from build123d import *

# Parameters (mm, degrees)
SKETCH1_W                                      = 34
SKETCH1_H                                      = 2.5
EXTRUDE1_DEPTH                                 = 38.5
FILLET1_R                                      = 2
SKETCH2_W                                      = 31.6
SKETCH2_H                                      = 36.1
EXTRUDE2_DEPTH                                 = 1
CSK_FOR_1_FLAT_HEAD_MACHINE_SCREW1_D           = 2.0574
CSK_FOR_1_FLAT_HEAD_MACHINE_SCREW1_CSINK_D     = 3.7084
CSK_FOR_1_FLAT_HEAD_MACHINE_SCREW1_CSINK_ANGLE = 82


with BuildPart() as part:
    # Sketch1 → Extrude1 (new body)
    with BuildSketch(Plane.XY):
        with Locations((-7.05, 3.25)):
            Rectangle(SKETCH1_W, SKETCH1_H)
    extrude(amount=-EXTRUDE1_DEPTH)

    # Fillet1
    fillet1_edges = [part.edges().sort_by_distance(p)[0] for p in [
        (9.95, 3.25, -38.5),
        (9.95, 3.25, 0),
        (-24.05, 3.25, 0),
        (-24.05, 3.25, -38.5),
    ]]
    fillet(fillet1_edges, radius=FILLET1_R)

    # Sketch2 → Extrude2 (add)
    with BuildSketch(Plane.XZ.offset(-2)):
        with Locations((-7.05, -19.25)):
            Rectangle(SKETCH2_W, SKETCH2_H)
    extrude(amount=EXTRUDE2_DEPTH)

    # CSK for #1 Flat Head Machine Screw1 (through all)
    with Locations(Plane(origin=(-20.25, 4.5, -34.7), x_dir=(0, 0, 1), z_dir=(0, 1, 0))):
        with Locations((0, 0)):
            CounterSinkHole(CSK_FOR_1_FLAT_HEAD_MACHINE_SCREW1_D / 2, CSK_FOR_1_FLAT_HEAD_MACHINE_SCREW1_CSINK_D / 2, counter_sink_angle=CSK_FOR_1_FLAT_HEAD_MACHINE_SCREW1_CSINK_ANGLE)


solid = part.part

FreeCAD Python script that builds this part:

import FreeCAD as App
import Part
import Sketcher
from FreeCAD import Vector
Q = App.Units.Quantity


def edges_at(feature, points):
    """Names of the edges that pass closest to the given points."""
    edges = feature.Shape.Edges
    near = lambda p: min(range(len(edges)), key=lambda i: edges[i].distToShape(Part.Vertex(*p))[0])
    return sorted({f"Edge{near(p) + 1}" for p in points})

doc = App.newDocument("Part")
body = doc.addObject("PartDesign::Body", "Body")

sketch1 = body.newObject("Sketcher::SketchObject", "Sketch")
sketch1.AttachmentSupport = (doc.getObject("XY_Plane"), [""])
sketch1.MapMode = "FlatFace"
sketch1.addGeometry([
    Part.LineSegment(Vector(-24.1, 4.5, 0), Vector(-24.1, 2, 0)),
    Part.LineSegment(Vector(-24.1, 2, 0), Vector(9.9, 2, 0)),
    Part.LineSegment(Vector(9.9, 2, 0), Vector(9.9, 4.5, 0)),
    Part.LineSegment(Vector(9.9, 4.5, 0), Vector(-24.1, 4.5, 0)),
], False)
sketch1.addConstraint([
    Sketcher.Constraint("Coincident", 0, 2, 1, 1),
    Sketcher.Constraint("Coincident", 1, 2, 2, 1),
    Sketcher.Constraint("Coincident", 2, 2, 3, 1),
    Sketcher.Constraint("Coincident", 3, 2, 0, 1),
    Sketcher.Constraint("Vertical", 0),
    Sketcher.Constraint("Horizontal", 1),
    Sketcher.Constraint("Vertical", 2),
    Sketcher.Constraint("Horizontal", 3),
    Sketcher.Constraint("DistanceX", 1, 1, 1, 2, Q("34 mm")),
    Sketcher.Constraint("DistanceY", 0, 2, 0, 1, Q("2.5 mm")),
    Sketcher.Constraint("DistanceY", -1, 1, 0, 2, Q("2 mm")),
    Sketcher.Constraint("DistanceX", 0, 2, -1, 1, Q("24.05 mm")),
])
pad1 = body.newObject("PartDesign::Pad", "Pad")
pad1.Profile = sketch1
pad1.Length = 38.5
pad1.Reversed = True
doc.recompute()

fillet = body.newObject("PartDesign::Fillet", "Fillet")
fillet.Base = (pad1, edges_at(pad1, [
    (9.95, 3.25, -38.5),
    (9.95, 3.25, 0),
    (-24.05, 3.25, 0),
    (-24.05, 3.25, -38.5),
]))
fillet.Radius = 2

sketch2 = body.newObject("Sketcher::SketchObject", "Sketch001")
sketch2.AttachmentSupport = (doc.getObject("XZ_Plane"), [""])
sketch2.MapMode = "FlatFace"
sketch2.AttachmentOffset = App.Placement(Vector(0, 0, -2), App.Rotation())
sketch2.addGeometry([
    Part.LineSegment(Vector(-23, -1, 0), Vector(-23, -37, 0)),
    Part.LineSegment(Vector(-23, -37, 0), Vector(9, -37, 0)),
    Part.LineSegment(Vector(9, -37, 0), Vector(9, -1, 0)),
    Part.LineSegment(Vector(9, -1, 0), Vector(-23, -1, 0)),
], False)
sketch2.addConstraint([
    Sketcher.Constraint("Coincident", 0, 2, 1, 1),
    Sketcher.Constraint("Coincident", 1, 2, 2, 1),
    Sketcher.Constraint("Coincident", 2, 2, 3, 1),
    Sketcher.Constraint("Coincident", 3, 2, 0, 1),
    Sketcher.Constraint("Vertical", 0),
    Sketcher.Constraint("Horizontal", 1),
    Sketcher.Constraint("Vertical", 2),
    Sketcher.Constraint("Horizontal", 3),
    Sketcher.Constraint("DistanceX", 1, 1, 1, 2, Q("31.6 mm")),
    Sketcher.Constraint("DistanceY", 0, 2, 0, 1, Q("36.1 mm")),
    Sketcher.Constraint("DistanceY", 0, 2, -1, 1, Q("37.3 mm")),
    Sketcher.Constraint("DistanceX", 0, 2, -1, 1, Q("22.85 mm")),
])
pad2 = body.newObject("PartDesign::Pad", "Pad001")
pad2.Profile = sketch2
pad2.Length = 1

sketch3 = body.newObject("Sketcher::SketchObject", "Sketch002")
sketch3.AttachmentSupport = (doc.getObject("XZ_Plane"), [""])
sketch3.MapMode = "FlatFace"
sketch3.AttachmentOffset = App.Placement(Vector(0, 0, -4.5), App.Rotation())
sketch3.addGeometry(Part.Circle(Vector(-20.2, -34.7, 0), Vector(0, 0, 1), 1), False)
sketch3.addConstraint([
    Sketcher.Constraint("Diameter", 0, Q("2.0574 mm")),
    Sketcher.Constraint("DistanceY", 0, 3, -1, 1, Q("34.7 mm")),
    Sketcher.Constraint("DistanceX", 0, 3, -1, 1, Q("20.25 mm")),
])
doc.recompute()
hole = body.newObject("PartDesign::Hole", "Hole")
hole.Profile = sketch3
hole.ThreadType = "None"
hole.Diameter = 2.0574
hole.DepthType = "ThroughAll"
hole.HoleCutType = "Countersink"
hole.HoleCutDiameter = 3.7084
hole.HoleCutCountersinkAngle = 82
hole.Reversed = True

doc.recompute()
